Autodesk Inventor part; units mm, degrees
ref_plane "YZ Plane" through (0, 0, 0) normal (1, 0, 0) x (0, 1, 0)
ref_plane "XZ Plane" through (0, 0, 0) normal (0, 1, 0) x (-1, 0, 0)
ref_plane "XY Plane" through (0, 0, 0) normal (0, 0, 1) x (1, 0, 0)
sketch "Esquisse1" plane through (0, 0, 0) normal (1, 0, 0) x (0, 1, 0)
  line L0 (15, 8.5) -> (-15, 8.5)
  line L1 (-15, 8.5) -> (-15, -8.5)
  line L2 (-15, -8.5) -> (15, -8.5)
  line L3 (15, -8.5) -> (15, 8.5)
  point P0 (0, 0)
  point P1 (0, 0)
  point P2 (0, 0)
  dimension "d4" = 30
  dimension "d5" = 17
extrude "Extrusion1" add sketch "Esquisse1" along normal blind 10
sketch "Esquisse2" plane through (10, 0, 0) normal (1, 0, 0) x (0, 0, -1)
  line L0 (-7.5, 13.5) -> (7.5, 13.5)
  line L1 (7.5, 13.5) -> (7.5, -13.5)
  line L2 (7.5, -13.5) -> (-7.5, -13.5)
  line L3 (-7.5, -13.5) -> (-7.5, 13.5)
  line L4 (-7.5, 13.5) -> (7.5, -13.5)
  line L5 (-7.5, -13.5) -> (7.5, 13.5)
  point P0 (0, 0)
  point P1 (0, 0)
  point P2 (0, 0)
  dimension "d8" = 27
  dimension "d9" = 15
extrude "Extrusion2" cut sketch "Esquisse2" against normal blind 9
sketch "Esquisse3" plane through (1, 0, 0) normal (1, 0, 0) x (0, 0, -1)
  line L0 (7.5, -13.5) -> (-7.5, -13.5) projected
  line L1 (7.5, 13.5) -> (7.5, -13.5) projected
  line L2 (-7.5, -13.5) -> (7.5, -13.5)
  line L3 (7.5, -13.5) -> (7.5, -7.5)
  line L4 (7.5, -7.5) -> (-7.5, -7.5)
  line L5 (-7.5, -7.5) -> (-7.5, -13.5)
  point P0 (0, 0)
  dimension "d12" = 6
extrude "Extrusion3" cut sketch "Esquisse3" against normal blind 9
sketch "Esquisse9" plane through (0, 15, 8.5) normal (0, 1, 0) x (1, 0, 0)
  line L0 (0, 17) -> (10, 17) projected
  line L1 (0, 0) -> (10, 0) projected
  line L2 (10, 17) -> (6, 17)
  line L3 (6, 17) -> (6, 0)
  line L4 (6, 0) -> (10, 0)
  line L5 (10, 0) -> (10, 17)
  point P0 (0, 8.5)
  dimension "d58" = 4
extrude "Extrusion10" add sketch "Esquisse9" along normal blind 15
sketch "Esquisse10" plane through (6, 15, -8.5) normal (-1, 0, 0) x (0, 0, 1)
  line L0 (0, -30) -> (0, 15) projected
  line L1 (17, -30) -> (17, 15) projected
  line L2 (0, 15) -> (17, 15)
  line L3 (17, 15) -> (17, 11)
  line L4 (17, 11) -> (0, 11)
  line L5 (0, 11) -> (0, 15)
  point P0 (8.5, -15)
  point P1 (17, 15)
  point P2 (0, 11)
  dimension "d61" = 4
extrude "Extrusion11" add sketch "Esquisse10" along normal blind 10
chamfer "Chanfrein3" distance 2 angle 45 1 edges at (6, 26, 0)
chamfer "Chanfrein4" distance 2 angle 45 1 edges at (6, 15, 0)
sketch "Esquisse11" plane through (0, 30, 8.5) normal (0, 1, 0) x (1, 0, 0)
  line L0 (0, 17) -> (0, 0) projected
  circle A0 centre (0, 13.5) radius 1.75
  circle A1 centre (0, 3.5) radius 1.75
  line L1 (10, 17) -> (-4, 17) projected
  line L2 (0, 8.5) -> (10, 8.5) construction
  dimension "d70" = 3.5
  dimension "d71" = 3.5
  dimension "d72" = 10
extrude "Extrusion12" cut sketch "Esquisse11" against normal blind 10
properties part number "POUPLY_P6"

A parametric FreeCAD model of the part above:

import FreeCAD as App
import Part
import Sketcher

V = App.Vector


def edges_at(feature, points):
    """Names of the edges that pass closest to the given points."""
    edges = feature.Shape.Edges
    near = lambda p: min(range(len(edges)), key=lambda i: edges[i].distToShape(Part.Vertex(*p))[0])
    return sorted({f"Edge{near(p) + 1}" for p in points})

doc = App.newDocument("Part")
body = doc.addObject("PartDesign::Body", "Body")

# Sketch on YZ plane
sketch1 = body.newObject("Sketcher::SketchObject", "Sketch")
sketch1.AttachmentSupport = (doc.getObject("YZ_Plane"), [""])
sketch1.MapMode = "FlatFace"
sketch1.addGeometry([
    Part.LineSegment(V(15, -8.5, 0), V(15, 8.5, 0)),
    Part.LineSegment(V(15, 8.5, 0), V(-15, 8.5, 0)),
    Part.LineSegment(V(-15, 8.5, 0), V(-15, -8.5, 0)),
    Part.LineSegment(V(-15, -8.5, 0), V(15, -8.5, 0)),
], False)
sketch1.addConstraint([
    Sketcher.Constraint("Coincident", 0, 2, 1, 1),
    Sketcher.Constraint("Coincident", 1, 2, 2, 1),
    Sketcher.Constraint("Coincident", 2, 2, 3, 1),
    Sketcher.Constraint("Coincident", 3, 2, 0, 1),
    Sketcher.Constraint("Vertical", 0),
    Sketcher.Constraint("Horizontal", 1),
    Sketcher.Constraint("Vertical", 2),
    Sketcher.Constraint("Horizontal", 3),
    Sketcher.Constraint("Symmetric", 0, 2, 2, 2, -1, 1),
    Sketcher.Constraint("DistanceX", 1, 2, 1, 1, 30.0),
    Sketcher.Constraint("DistanceY", 0, 1, 0, 2, 17.0),
])
pad1 = body.newObject("PartDesign::Pad", "Pad")
pad1.Profile = sketch1
pad1.Length = 10

# Sketch on YZ plane
sketch2 = body.newObject("Sketcher::SketchObject", "Sketch001")
sketch2.AttachmentSupport = (doc.getObject("YZ_Plane"), [""])
sketch2.MapMode = "FlatFace"
sketch2.AttachmentOffset = App.Placement(V(0, 0, 10), App.Rotation())
sketch2.addGeometry([
    Part.LineSegment(V(13.5, 7.5, 0), V(-13.5, 7.5, 0)),
    Part.LineSegment(V(-13.5, 7.5, 0), V(-13.5, -7.5, 0)),
    Part.LineSegment(V(-13.5, -7.5, 0), V(13.5, -7.5, 0)),
    Part.LineSegment(V(13.5, -7.5, 0), V(13.5, 7.5, 0)),
], False)
sketch2.addConstraint([
    Sketcher.Constraint("Coincident", 0, 2, 1, 1),
    Sketcher.Constraint("Coincident", 1, 2, 2, 1),
    Sketcher.Constraint("Coincident", 2, 2, 3, 1),
    Sketcher.Constraint("Coincident", 3, 2, 0, 1),
    Sketcher.Constraint("Horizontal", 0),
    Sketcher.Constraint("Vertical", 1),
    Sketcher.Constraint("Horizontal", 2),
    Sketcher.Constraint("Vertical", 3),
    Sketcher.Constraint("Symmetric", 0, 2, 2, 2, -1, 1),
    Sketcher.Constraint("DistanceX", 0, 2, 0, 1, 27.0),
    Sketcher.Constraint("DistanceY", 1, 2, 1, 1, 15.0),
])
pocket1 = body.newObject("PartDesign::Pocket", "Pocket")
pocket1.Profile = sketch2
pocket1.Length = 9

# Sketch on YZ plane
sketch3 = body.newObject("Sketcher::SketchObject", "Sketch002")
sketch3.AttachmentSupport = (doc.getObject("YZ_Plane"), [""])
sketch3.MapMode = "FlatFace"
sketch3.AttachmentOffset = App.Placement(V(0, 0, 1), App.Rotation())
sketch3.addGeometry([
    Part.LineSegment(V(-13.5, 7.5, 0), V(-13.5, -7.5, 0)),
    Part.LineSegment(V(-13.5, -7.5, 0), V(-7.5, -7.5, 0)),
    Part.LineSegment(V(-7.5, -7.5, 0), V(-7.5, 7.5, 0)),
    Part.LineSegment(V(-7.5, 7.5, 0), V(-13.5, 7.5, 0)),
], False)
sketch3.addConstraint([
    Sketcher.Constraint("Coincident", 0, 2, 1, 1),
    Sketcher.Constraint("Coincident", 1, 2, 2, 1),
    Sketcher.Constraint("Coincident", 2, 2, 3, 1),
    Sketcher.Constraint("Coincident", 3, 2, 0, 1),
    Sketcher.Constraint("Vertical", 0),
    Sketcher.Constraint("Horizontal", 1),
    Sketcher.Constraint("Vertical", 2),
    Sketcher.Constraint("Horizontal", 3),
    Sketcher.Constraint("DistanceX", 1, 1, 1, 2, 6.0),
    Sketcher.Constraint("DistanceY", 0, 2, 0, 1, 15.0),
    Sketcher.Constraint("DistanceX", 0, 2, -1, 1, 13.5),
    Sketcher.Constraint("DistanceY", 0, 2, -1, 1, 7.5),
])
pocket2 = body.newObject("PartDesign::Pocket", "Pocket001")
pocket2.Profile = sketch3
pocket2.Length = 9

# Sketch on XZ plane
sketch4 = body.newObject("Sketcher::SketchObject", "Sketch003")
sketch4.AttachmentSupport = (doc.getObject("XZ_Plane"), [""])
sketch4.MapMode = "FlatFace"
sketch4.AttachmentOffset = App.Placement(V(0, 0, -15), App.Rotation())
sketch4.addGeometry([
    Part.LineSegment(V(10, -8.5, 0), V(6, -8.5, 0)),
    Part.LineSegment(V(6, -8.5, 0), V(6, 8.5, 0)),
    Part.LineSegment(V(6, 8.5, 0), V(10, 8.5, 0)),
    Part.LineSegment(V(10, 8.5, 0), V(10, -8.5, 0)),
], False)
sketch4.addConstraint([
    Sketcher.Constraint("Coincident", 0, 2, 1, 1),
    Sketcher.Constraint("Coincident", 1, 2, 2, 1),
    Sketcher.Constraint("Coincident", 2, 2, 3, 1),
    Sketcher.Constraint("Coincident", 3, 2, 0, 1),
    Sketcher.Constraint("Horizontal", 0),
    Sketcher.Constraint("Vertical", 1),
    Sketcher.Constraint("Horizontal", 2),
    Sketcher.Constraint("Vertical", 3),
    Sketcher.Constraint("DistanceX", 0, 2, 0, 1, 4.0),
    Sketcher.Constraint("DistanceY", 1, 1, 1, 2, 17.0),
    Sketcher.Constraint("DistanceX", -1, 1, 0, 2, 6.0),
    Sketcher.Constraint("DistanceY", 0, 2, -1, 1, 8.5),
])
pad2 = body.newObject("PartDesign::Pad", "Pad001")
pad2.Profile = sketch4
pad2.Length = 15
pad2.Reversed = True

# Sketch on YZ plane
sketch5 = body.newObject("Sketcher::SketchObject", "Sketch004")
sketch5.AttachmentSupport = (doc.getObject("YZ_Plane"), [""])
sketch5.MapMode = "FlatFace"
sketch5.AttachmentOffset = App.Placement(V(0, 0, 6), App.Rotation())
sketch5.addGeometry([
    Part.LineSegment(V(30, -8.5, 0), V(26, -8.5, 0)),
    Part.LineSegment(V(26, -8.5, 0), V(26, 8.5, 0)),
    Part.LineSegment(V(26, 8.5, 0), V(30, 8.5, 0)),
    Part.LineSegment(V(30, 8.5, 0), V(30, -8.5, 0)),
], False)
sketch5.addConstraint([
    Sketcher.Constraint("Coincident", 0, 2, 1, 1),
    Sketcher.Constraint("Coincident", 1, 2, 2, 1),
    Sketcher.Constraint("Coincident", 2, 2, 3, 1),
    Sketcher.Constraint("Coincident", 3, 2, 0, 1),
    Sketcher.Constraint("Horizontal", 0),
    Sketcher.Constraint("Vertical", 1),
    Sketcher.Constraint("Horizontal", 2),
    Sketcher.Constraint("Vertical", 3),
    Sketcher.Constraint("DistanceX", 0, 2, 0, 1, 4.0),
    Sketcher.Constraint("DistanceY", 1, 1, 1, 2, 17.0),
    Sketcher.Constraint("DistanceX", -1, 1, 0, 2, 26.0),
    Sketcher.Constraint("DistanceY", 0, 2, -1, 1, 8.5),
])
pad3 = body.newObject("PartDesign::Pad", "Pad002")
pad3.Profile = sketch5
pad3.Length = 10
pad3.Reversed = True
doc.recompute()

chamfer = body.newObject("PartDesign::Chamfer", "Chamfer")
chamfer.Base = (pad3, edges_at(pad3, [(6, 26, 0)]))
chamfer.Size = 2
doc.recompute()

chamfer2 = body.newObject("PartDesign::Chamfer", "Chamfer001")
chamfer2.Base = (chamfer, edges_at(chamfer, [(6, 15, 0)]))
chamfer2.Size = 2

# Sketch on XZ plane
sketch6 = body.newObject("Sketcher::SketchObject", "Sketch005")
sketch6.AttachmentSupport = (doc.getObject("XZ_Plane"), [""])
sketch6.MapMode = "FlatFace"
sketch6.AttachmentOffset = App.Placement(V(0, 0, -30), App.Rotation())
sketch6.addGeometry([
    Part.Circle(V(0, -5, 0), V(0, 0, 1), 1.75),
    Part.Circle(V(0, 5, 0), V(0, 0, 1), 1.75),
], False)
sketch6.addConstraint([
    Sketcher.Constraint("Equal", 0, 1),
    Sketcher.Constraint("Symmetric", 0, 3, 1, 3, -1, 1),
    Sketcher.Constraint("PointOnObject", 0, 3, -2),
    Sketcher.Constraint("Diameter", 0, 3.5),
    Sketcher.Constraint("DistanceY", 0, 3, 1, 3, 10.0),
])
pocket3 = body.newObject("PartDesign::Pocket", "Pocket002")
pocket3.Profile = sketch6
pocket3.Length = 10
pocket3.Reversed = True

doc.recompute()
